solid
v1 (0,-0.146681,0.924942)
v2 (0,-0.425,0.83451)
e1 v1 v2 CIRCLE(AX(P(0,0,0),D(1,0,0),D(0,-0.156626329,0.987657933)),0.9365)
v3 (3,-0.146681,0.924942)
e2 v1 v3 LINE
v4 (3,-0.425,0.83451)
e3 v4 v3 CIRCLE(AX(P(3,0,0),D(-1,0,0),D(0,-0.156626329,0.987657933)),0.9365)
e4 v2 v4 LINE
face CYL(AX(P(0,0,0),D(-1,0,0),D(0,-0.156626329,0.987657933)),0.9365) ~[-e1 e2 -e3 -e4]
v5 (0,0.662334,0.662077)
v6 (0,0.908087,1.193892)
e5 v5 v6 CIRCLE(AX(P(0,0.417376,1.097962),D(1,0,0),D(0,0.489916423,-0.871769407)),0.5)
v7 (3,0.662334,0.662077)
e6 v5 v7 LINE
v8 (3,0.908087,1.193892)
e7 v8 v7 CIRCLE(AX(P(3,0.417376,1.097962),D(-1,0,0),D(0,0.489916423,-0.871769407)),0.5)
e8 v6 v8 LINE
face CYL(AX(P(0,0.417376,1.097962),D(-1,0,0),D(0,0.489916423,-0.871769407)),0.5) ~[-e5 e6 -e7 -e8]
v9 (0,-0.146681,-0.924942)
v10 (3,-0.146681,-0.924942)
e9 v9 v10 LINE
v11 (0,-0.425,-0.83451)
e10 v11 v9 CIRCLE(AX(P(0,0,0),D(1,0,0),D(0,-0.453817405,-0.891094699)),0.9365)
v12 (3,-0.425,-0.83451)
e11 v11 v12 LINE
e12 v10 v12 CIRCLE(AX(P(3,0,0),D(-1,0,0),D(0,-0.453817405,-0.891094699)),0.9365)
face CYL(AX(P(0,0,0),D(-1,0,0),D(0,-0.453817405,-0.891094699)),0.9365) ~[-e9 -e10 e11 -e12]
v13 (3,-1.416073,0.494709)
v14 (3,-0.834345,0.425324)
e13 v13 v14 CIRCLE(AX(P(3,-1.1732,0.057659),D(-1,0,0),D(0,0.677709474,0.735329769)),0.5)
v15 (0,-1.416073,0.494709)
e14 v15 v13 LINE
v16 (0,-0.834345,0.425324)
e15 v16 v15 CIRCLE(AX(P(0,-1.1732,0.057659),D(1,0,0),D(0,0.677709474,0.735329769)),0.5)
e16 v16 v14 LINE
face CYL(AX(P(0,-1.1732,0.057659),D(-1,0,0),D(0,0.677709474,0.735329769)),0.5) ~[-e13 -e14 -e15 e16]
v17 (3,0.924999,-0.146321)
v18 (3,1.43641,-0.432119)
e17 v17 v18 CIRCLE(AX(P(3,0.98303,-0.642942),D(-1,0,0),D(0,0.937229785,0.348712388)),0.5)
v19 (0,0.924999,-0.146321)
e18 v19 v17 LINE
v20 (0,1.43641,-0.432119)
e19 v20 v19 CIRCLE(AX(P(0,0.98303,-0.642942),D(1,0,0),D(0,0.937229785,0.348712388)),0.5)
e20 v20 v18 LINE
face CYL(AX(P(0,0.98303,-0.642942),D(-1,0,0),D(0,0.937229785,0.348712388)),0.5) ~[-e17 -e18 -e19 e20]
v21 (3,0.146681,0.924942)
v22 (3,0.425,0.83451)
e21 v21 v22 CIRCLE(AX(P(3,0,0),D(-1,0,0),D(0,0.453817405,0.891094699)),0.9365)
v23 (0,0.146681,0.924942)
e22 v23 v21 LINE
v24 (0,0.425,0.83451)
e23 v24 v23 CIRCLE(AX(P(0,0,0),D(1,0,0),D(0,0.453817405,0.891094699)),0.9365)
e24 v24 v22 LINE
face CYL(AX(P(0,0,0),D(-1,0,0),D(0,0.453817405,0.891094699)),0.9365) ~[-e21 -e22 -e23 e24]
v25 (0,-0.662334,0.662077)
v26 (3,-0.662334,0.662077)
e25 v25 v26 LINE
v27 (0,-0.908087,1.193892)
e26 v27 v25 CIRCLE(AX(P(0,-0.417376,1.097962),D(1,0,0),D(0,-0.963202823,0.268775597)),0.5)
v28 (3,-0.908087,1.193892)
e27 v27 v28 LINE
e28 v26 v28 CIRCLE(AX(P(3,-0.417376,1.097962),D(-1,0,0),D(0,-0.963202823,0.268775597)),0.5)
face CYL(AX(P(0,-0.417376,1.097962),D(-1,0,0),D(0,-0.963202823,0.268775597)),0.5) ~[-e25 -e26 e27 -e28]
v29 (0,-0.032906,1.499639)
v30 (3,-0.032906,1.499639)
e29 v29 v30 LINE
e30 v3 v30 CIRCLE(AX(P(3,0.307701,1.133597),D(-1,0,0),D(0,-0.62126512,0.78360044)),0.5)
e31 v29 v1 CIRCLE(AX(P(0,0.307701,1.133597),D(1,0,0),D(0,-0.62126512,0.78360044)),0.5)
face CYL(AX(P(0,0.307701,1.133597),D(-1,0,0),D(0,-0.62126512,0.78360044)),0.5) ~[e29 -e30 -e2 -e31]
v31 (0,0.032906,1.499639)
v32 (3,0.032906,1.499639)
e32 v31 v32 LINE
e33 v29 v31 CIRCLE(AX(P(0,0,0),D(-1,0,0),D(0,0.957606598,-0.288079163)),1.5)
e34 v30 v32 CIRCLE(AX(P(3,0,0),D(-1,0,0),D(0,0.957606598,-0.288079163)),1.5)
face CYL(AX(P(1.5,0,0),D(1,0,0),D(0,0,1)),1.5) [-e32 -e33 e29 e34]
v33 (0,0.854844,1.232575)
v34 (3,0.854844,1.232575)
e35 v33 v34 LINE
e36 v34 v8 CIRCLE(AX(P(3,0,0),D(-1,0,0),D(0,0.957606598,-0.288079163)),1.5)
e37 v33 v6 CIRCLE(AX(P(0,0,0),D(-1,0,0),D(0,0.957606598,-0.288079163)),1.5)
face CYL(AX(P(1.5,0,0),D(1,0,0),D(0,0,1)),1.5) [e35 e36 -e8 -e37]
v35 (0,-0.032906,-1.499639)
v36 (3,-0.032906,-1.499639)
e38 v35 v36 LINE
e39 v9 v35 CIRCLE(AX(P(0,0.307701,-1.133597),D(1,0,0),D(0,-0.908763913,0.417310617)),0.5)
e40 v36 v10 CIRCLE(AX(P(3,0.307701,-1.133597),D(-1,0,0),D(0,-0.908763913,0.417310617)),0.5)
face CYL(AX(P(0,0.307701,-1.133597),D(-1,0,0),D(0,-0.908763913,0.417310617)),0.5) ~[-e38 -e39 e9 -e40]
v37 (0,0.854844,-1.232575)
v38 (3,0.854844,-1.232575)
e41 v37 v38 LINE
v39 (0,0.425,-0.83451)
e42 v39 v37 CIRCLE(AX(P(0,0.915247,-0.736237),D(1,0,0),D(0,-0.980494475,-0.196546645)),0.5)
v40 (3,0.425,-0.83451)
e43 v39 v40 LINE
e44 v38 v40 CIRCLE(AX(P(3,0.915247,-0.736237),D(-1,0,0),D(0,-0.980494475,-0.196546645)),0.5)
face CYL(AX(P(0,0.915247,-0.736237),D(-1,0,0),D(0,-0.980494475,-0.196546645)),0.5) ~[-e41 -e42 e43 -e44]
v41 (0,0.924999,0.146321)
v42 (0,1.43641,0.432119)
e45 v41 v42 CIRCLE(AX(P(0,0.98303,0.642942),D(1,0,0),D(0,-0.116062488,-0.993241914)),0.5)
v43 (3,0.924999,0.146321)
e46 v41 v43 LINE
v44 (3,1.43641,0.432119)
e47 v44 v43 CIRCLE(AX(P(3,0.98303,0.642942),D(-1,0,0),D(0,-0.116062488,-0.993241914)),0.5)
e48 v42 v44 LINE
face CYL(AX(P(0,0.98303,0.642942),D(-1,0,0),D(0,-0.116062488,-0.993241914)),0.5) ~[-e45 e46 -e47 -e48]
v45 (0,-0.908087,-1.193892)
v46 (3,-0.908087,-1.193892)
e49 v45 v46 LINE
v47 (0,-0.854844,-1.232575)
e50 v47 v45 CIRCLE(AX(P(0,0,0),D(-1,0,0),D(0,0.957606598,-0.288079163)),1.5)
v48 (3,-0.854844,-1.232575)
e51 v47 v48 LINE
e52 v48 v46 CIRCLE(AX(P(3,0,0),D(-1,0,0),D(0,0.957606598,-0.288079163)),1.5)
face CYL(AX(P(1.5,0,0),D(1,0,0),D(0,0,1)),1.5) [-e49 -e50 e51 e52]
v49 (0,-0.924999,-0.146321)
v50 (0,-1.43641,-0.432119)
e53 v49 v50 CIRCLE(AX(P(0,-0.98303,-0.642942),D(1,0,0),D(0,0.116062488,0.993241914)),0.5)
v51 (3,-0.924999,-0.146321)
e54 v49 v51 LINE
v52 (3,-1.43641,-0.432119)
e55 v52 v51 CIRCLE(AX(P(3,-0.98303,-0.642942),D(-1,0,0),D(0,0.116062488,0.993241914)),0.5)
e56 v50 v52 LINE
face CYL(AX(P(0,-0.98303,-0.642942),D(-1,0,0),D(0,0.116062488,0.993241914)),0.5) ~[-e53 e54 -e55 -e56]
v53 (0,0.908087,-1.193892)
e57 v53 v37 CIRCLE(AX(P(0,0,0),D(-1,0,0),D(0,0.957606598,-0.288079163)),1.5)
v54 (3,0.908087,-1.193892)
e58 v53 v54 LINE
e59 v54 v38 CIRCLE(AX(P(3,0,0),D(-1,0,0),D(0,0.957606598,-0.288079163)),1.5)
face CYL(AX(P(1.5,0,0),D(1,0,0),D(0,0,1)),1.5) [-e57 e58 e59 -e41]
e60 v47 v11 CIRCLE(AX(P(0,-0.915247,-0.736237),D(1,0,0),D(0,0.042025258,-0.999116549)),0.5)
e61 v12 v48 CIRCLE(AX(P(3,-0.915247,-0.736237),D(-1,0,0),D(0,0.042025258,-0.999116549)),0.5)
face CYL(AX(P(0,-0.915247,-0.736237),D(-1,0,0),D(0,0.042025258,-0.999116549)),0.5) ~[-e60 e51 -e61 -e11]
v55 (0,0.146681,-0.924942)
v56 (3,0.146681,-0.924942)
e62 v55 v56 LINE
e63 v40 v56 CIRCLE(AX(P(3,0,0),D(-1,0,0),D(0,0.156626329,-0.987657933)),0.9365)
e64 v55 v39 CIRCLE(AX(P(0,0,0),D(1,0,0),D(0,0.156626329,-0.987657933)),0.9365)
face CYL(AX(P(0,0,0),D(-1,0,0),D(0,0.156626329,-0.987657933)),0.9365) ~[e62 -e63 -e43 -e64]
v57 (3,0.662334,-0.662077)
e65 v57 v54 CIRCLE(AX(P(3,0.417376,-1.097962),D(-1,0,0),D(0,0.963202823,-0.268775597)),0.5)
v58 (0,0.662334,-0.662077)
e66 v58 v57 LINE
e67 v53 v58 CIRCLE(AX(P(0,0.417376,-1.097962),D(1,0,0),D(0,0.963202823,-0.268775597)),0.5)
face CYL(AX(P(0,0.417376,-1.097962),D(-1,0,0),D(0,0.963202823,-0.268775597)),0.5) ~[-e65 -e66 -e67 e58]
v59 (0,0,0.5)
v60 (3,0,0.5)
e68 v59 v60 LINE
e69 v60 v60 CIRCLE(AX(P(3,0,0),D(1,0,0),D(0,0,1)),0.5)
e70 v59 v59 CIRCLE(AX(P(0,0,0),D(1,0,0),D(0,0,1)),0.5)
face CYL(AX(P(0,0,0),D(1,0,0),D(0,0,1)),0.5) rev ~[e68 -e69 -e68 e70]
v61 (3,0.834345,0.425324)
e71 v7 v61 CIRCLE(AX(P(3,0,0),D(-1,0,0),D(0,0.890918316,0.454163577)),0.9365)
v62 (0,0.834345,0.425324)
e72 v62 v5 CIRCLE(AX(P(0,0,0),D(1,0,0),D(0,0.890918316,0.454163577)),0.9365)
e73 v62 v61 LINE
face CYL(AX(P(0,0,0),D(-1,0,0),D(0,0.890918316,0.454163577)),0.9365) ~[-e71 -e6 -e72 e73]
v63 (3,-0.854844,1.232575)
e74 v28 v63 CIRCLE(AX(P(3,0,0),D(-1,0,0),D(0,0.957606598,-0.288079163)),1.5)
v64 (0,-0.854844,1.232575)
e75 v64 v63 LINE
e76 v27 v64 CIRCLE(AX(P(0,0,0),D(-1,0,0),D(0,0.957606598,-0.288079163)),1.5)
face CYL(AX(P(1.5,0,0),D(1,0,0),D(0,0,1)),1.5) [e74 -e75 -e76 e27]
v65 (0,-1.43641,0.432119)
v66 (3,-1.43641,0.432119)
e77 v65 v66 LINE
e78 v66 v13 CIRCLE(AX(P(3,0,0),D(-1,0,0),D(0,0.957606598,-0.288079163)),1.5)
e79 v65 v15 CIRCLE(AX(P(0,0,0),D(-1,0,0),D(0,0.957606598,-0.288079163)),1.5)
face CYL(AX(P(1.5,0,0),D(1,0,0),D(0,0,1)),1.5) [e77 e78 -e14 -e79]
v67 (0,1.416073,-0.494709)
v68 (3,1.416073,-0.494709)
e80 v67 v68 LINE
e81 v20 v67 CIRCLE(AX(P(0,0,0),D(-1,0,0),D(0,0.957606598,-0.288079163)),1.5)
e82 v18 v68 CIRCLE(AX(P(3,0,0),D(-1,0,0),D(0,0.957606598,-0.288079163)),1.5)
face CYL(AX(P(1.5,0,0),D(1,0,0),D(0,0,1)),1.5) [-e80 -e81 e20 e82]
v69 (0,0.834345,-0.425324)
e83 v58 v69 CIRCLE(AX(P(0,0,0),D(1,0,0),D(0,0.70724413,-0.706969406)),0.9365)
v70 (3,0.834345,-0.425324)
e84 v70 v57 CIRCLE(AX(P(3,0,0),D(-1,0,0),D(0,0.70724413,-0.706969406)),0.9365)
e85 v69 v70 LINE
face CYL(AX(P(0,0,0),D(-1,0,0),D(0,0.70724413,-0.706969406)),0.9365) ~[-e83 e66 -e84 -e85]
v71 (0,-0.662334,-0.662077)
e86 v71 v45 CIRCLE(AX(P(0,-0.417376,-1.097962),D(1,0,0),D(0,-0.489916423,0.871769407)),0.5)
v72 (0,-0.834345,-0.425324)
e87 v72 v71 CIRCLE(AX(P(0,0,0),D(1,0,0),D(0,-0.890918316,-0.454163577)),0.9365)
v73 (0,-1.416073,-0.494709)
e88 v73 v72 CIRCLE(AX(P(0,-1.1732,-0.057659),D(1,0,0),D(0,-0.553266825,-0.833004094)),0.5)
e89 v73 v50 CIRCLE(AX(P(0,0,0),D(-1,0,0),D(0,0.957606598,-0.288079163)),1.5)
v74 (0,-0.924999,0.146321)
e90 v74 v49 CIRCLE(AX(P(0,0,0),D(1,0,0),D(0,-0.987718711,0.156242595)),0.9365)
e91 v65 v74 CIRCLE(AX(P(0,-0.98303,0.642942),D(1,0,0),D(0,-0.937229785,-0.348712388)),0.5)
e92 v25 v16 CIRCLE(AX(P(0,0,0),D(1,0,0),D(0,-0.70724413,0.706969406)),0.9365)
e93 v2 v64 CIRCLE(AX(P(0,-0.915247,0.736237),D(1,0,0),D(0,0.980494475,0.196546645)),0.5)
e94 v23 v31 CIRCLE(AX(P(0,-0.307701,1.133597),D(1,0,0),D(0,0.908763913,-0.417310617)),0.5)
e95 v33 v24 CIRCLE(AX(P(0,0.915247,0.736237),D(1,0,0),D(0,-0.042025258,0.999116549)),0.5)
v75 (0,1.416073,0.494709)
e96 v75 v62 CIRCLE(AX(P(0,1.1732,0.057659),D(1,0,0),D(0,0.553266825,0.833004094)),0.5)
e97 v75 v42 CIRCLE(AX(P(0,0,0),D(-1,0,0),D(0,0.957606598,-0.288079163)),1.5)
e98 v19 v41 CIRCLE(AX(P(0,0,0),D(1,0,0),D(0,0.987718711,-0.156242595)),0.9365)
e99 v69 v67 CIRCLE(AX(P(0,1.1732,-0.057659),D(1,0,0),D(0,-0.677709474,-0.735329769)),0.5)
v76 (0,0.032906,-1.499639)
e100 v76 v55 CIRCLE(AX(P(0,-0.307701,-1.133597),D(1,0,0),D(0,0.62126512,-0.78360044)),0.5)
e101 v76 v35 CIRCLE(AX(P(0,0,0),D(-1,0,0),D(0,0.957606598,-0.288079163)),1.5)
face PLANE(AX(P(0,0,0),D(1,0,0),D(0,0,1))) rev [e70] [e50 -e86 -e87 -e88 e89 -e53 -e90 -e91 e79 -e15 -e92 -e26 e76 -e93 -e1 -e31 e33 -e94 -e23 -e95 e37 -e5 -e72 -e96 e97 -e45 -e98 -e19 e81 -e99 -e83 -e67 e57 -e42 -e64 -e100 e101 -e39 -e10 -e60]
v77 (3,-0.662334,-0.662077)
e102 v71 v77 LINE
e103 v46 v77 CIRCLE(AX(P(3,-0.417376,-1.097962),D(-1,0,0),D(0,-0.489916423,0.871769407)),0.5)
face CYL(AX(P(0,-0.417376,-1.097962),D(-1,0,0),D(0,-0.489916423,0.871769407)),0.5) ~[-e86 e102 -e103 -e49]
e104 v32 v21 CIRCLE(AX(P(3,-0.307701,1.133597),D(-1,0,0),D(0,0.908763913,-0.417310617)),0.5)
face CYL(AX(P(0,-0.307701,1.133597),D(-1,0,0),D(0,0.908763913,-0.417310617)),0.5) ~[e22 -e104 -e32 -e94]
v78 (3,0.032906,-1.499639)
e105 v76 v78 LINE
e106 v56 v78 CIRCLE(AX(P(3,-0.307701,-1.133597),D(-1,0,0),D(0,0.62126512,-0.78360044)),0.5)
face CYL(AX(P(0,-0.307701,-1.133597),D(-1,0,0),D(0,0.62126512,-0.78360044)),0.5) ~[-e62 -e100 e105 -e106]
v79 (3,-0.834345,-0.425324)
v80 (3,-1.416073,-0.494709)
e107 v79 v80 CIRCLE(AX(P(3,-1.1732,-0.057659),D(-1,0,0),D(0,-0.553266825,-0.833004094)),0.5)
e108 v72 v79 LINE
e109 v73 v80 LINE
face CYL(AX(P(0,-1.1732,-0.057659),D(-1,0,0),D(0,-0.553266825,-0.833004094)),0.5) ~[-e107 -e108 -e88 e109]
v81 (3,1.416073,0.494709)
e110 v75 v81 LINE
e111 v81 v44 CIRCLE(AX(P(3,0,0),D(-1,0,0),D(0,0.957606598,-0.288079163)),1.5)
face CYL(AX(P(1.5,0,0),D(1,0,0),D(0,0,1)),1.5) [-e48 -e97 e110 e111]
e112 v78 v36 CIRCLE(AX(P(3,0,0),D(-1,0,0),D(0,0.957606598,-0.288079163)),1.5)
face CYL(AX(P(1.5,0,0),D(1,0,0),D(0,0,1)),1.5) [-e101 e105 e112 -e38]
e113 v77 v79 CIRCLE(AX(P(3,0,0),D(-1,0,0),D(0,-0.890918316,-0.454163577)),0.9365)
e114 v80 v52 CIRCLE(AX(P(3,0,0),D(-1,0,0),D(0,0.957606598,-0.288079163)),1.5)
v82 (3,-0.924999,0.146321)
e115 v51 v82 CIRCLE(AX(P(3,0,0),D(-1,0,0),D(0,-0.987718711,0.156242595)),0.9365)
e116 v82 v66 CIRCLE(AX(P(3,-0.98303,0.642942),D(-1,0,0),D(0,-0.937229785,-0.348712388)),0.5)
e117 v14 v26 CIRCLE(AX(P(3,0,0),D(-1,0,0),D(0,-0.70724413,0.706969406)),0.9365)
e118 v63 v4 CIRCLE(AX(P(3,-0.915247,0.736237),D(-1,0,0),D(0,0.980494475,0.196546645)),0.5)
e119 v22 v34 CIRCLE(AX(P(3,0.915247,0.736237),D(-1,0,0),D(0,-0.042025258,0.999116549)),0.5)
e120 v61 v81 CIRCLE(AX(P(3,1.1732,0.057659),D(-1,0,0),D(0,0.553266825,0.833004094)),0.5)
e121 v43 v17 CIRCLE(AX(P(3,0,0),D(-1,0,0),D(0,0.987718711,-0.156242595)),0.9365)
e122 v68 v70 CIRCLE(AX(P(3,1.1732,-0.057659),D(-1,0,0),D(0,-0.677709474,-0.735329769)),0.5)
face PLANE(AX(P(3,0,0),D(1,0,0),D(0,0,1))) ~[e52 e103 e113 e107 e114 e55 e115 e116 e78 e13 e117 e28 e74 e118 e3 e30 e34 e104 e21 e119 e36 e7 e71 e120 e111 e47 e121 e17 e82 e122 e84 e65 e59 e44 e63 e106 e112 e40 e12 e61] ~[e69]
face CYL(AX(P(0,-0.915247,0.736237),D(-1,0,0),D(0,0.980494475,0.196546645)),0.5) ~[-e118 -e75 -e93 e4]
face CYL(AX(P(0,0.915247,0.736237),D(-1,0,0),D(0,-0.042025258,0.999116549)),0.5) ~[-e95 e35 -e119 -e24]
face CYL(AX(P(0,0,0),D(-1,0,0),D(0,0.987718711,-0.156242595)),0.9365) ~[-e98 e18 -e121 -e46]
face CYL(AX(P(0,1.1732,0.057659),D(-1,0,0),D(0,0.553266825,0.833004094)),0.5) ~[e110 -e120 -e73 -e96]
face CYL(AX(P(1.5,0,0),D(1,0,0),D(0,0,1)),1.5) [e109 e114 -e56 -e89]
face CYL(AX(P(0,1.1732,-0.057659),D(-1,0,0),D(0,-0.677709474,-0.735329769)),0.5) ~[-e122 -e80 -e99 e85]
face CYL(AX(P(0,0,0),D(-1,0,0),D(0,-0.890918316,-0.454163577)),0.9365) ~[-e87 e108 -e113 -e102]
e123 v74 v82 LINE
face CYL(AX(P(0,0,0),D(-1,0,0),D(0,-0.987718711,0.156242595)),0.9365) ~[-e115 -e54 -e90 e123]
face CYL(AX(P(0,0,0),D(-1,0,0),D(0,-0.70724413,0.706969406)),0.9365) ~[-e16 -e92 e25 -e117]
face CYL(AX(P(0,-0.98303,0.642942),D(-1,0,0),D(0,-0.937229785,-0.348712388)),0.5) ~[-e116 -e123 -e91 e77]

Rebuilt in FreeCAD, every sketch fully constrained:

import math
import FreeCAD as App
import Part
import Sketcher

V = App.Vector
Q = App.Units.Quantity

doc = App.newDocument("Part")
body = doc.addObject("PartDesign::Body", "Body")

# Sketch on XZ plane
sketch1 = body.newObject("Sketcher::SketchObject", "Sketch")
sketch1.AttachmentSupport = (doc.getObject("XZ_Plane"), [""])
sketch1.MapMode = "FlatFace"
sketch1.addGeometry(Part.LineSegment(V(0, -1.5, 0), V(0, 0, 0)), False)
sketch1.addGeometry(Part.LineSegment(V(0, 0, 0), V(3, 0, 0)), False)
sketch1.addGeometry(Part.LineSegment(V(3, 0, 0), V(3, -1.5, 0)), False)
sketch1.addGeometry(Part.LineSegment(V(3, -1.5, 0), V(0, -1.5, 0)), False)
sketch1.addConstraint(Sketcher.Constraint("Coincident", 0, 2, 1, 1))
sketch1.addConstraint(Sketcher.Constraint("Coincident", 1, 2, 2, 1))
sketch1.addConstraint(Sketcher.Constraint("Coincident", 2, 2, 3, 1))
sketch1.addConstraint(Sketcher.Constraint("Coincident", 3, 2, 0, 1))
sketch1.addConstraint(Sketcher.Constraint("Vertical", 0))
sketch1.addConstraint(Sketcher.Constraint("Horizontal", 1))
sketch1.addConstraint(Sketcher.Constraint("Vertical", 2))
sketch1.addConstraint(Sketcher.Constraint("Horizontal", 3))
sketch1.addConstraint(Sketcher.Constraint("Coincident", 0, 2, -1, 1))
sketch1.addConstraint(Sketcher.Constraint("DistanceX", 1, 1, 1, 2, Q("3 mm")))
sketch1.addConstraint(Sketcher.Constraint("DistanceY", 0, 1, 0, 2, Q("1.5 mm")))
revolution = body.newObject("PartDesign::Revolution", "Revolution")
revolution.Profile = sketch1
revolution.ReferenceAxis = (sketch1, ["H_Axis"])
revolution.Angle = 360

# Sketch on YZ plane
sketch2 = body.newObject("Sketcher::SketchObject", "Sketch001")
sketch2.AttachmentSupport = (doc.getObject("YZ_Plane"), [""])
sketch2.MapMode = "FlatFace"
sketch2.addGeometry(Part.ArcOfCircle(Part.Circle(V(0, 0, 0), V(0, 0, 1), 0.94), math.radians(-8.99), math.radians(8.99)), False)
sketch2.addGeometry(Part.ArcOfCircle(Part.Circle(V(0.98, -0.64, 0), V(0, 0, 1), 0.5), math.radians(20), math.radians(97)), False)
sketch2.addGeometry(Part.ArcOfCircle(Part.Circle(V(0, 0, 0), V(0, 0, 1), 1.53), math.radians(-18), math.radians(18)), False)
sketch2.addGeometry(Part.ArcOfCircle(Part.Circle(V(0.98, 0.64, 0), V(0, 0, 1), 0.5), math.radians(-97), math.radians(-20)), False)
sketch2.addConstraint(Sketcher.Constraint("Coincident", 0, 1, 1, 2))
sketch2.addConstraint(Sketcher.Constraint("Coincident", 1, 1, 2, 1))
sketch2.addConstraint(Sketcher.Constraint("Coincident", 2, 2, 3, 2))
sketch2.addConstraint(Sketcher.Constraint("Coincident", 3, 1, 0, 2))
sketch2.addConstraint(Sketcher.Constraint("Coincident", 0, 3, -1, 1))
sketch2.addConstraint(Sketcher.Constraint("Coincident", 2, 3, -1, 1))
sketch2.addConstraint(Sketcher.Constraint("Equal", 1, 3))
sketch2.addConstraint(Sketcher.Constraint("Symmetric", 1, 3, 3, 3, -1))
sketch2.addConstraint(Sketcher.Constraint("Radius", 1, Q("0.5 mm")))
sketch2.addConstraint(Sketcher.Constraint("Radius", 0, Q("0.9365 mm")))
sketch2.addConstraint(Sketcher.Constraint("Radius", 2, Q("1.5254 mm")))
sketch2.addConstraint(Sketcher.Constraint("DistanceX", -1, 1, 0, 1, Q("0.924999 mm")))
sketch2.addConstraint(Sketcher.Constraint("DistanceX", -1, 1, 1, 3, Q("0.98303 mm")))
pocket1 = body.newObject("PartDesign::Pocket", "Pocket")
pocket1.Profile = sketch2
pocket1.Type = "ThroughAll"
pocket1.Reversed = True
doc.recompute()

polarpattern = body.newObject("PartDesign::PolarPattern", "PolarPattern")
polarpattern.Originals = [pocket1]
polarpattern.Axis = (doc.getObject("X_Axis"), [""])
polarpattern.Angle = 360
polarpattern.Occurrences = 10
body.Tip = polarpattern

# Sketch on YZ plane
sketch3 = body.newObject("Sketcher::SketchObject", "Sketch002")
sketch3.AttachmentSupport = (doc.getObject("YZ_Plane"), [""])
sketch3.MapMode = "FlatFace"
sketch3.addGeometry(Part.Circle(V(0, 0, 0), V(0, 0, 1), 0.5), False)
sketch3.addConstraint(Sketcher.Constraint("Coincident", 0, 3, -1, 1))
sketch3.addConstraint(Sketcher.Constraint("Diameter", 0, Q("1 mm")))
pocket2 = body.newObject("PartDesign::Pocket", "Pocket001")
pocket2.Profile = sketch3
pocket2.Length = 100.000102
pocket2.Midplane = True

doc.recompute()
